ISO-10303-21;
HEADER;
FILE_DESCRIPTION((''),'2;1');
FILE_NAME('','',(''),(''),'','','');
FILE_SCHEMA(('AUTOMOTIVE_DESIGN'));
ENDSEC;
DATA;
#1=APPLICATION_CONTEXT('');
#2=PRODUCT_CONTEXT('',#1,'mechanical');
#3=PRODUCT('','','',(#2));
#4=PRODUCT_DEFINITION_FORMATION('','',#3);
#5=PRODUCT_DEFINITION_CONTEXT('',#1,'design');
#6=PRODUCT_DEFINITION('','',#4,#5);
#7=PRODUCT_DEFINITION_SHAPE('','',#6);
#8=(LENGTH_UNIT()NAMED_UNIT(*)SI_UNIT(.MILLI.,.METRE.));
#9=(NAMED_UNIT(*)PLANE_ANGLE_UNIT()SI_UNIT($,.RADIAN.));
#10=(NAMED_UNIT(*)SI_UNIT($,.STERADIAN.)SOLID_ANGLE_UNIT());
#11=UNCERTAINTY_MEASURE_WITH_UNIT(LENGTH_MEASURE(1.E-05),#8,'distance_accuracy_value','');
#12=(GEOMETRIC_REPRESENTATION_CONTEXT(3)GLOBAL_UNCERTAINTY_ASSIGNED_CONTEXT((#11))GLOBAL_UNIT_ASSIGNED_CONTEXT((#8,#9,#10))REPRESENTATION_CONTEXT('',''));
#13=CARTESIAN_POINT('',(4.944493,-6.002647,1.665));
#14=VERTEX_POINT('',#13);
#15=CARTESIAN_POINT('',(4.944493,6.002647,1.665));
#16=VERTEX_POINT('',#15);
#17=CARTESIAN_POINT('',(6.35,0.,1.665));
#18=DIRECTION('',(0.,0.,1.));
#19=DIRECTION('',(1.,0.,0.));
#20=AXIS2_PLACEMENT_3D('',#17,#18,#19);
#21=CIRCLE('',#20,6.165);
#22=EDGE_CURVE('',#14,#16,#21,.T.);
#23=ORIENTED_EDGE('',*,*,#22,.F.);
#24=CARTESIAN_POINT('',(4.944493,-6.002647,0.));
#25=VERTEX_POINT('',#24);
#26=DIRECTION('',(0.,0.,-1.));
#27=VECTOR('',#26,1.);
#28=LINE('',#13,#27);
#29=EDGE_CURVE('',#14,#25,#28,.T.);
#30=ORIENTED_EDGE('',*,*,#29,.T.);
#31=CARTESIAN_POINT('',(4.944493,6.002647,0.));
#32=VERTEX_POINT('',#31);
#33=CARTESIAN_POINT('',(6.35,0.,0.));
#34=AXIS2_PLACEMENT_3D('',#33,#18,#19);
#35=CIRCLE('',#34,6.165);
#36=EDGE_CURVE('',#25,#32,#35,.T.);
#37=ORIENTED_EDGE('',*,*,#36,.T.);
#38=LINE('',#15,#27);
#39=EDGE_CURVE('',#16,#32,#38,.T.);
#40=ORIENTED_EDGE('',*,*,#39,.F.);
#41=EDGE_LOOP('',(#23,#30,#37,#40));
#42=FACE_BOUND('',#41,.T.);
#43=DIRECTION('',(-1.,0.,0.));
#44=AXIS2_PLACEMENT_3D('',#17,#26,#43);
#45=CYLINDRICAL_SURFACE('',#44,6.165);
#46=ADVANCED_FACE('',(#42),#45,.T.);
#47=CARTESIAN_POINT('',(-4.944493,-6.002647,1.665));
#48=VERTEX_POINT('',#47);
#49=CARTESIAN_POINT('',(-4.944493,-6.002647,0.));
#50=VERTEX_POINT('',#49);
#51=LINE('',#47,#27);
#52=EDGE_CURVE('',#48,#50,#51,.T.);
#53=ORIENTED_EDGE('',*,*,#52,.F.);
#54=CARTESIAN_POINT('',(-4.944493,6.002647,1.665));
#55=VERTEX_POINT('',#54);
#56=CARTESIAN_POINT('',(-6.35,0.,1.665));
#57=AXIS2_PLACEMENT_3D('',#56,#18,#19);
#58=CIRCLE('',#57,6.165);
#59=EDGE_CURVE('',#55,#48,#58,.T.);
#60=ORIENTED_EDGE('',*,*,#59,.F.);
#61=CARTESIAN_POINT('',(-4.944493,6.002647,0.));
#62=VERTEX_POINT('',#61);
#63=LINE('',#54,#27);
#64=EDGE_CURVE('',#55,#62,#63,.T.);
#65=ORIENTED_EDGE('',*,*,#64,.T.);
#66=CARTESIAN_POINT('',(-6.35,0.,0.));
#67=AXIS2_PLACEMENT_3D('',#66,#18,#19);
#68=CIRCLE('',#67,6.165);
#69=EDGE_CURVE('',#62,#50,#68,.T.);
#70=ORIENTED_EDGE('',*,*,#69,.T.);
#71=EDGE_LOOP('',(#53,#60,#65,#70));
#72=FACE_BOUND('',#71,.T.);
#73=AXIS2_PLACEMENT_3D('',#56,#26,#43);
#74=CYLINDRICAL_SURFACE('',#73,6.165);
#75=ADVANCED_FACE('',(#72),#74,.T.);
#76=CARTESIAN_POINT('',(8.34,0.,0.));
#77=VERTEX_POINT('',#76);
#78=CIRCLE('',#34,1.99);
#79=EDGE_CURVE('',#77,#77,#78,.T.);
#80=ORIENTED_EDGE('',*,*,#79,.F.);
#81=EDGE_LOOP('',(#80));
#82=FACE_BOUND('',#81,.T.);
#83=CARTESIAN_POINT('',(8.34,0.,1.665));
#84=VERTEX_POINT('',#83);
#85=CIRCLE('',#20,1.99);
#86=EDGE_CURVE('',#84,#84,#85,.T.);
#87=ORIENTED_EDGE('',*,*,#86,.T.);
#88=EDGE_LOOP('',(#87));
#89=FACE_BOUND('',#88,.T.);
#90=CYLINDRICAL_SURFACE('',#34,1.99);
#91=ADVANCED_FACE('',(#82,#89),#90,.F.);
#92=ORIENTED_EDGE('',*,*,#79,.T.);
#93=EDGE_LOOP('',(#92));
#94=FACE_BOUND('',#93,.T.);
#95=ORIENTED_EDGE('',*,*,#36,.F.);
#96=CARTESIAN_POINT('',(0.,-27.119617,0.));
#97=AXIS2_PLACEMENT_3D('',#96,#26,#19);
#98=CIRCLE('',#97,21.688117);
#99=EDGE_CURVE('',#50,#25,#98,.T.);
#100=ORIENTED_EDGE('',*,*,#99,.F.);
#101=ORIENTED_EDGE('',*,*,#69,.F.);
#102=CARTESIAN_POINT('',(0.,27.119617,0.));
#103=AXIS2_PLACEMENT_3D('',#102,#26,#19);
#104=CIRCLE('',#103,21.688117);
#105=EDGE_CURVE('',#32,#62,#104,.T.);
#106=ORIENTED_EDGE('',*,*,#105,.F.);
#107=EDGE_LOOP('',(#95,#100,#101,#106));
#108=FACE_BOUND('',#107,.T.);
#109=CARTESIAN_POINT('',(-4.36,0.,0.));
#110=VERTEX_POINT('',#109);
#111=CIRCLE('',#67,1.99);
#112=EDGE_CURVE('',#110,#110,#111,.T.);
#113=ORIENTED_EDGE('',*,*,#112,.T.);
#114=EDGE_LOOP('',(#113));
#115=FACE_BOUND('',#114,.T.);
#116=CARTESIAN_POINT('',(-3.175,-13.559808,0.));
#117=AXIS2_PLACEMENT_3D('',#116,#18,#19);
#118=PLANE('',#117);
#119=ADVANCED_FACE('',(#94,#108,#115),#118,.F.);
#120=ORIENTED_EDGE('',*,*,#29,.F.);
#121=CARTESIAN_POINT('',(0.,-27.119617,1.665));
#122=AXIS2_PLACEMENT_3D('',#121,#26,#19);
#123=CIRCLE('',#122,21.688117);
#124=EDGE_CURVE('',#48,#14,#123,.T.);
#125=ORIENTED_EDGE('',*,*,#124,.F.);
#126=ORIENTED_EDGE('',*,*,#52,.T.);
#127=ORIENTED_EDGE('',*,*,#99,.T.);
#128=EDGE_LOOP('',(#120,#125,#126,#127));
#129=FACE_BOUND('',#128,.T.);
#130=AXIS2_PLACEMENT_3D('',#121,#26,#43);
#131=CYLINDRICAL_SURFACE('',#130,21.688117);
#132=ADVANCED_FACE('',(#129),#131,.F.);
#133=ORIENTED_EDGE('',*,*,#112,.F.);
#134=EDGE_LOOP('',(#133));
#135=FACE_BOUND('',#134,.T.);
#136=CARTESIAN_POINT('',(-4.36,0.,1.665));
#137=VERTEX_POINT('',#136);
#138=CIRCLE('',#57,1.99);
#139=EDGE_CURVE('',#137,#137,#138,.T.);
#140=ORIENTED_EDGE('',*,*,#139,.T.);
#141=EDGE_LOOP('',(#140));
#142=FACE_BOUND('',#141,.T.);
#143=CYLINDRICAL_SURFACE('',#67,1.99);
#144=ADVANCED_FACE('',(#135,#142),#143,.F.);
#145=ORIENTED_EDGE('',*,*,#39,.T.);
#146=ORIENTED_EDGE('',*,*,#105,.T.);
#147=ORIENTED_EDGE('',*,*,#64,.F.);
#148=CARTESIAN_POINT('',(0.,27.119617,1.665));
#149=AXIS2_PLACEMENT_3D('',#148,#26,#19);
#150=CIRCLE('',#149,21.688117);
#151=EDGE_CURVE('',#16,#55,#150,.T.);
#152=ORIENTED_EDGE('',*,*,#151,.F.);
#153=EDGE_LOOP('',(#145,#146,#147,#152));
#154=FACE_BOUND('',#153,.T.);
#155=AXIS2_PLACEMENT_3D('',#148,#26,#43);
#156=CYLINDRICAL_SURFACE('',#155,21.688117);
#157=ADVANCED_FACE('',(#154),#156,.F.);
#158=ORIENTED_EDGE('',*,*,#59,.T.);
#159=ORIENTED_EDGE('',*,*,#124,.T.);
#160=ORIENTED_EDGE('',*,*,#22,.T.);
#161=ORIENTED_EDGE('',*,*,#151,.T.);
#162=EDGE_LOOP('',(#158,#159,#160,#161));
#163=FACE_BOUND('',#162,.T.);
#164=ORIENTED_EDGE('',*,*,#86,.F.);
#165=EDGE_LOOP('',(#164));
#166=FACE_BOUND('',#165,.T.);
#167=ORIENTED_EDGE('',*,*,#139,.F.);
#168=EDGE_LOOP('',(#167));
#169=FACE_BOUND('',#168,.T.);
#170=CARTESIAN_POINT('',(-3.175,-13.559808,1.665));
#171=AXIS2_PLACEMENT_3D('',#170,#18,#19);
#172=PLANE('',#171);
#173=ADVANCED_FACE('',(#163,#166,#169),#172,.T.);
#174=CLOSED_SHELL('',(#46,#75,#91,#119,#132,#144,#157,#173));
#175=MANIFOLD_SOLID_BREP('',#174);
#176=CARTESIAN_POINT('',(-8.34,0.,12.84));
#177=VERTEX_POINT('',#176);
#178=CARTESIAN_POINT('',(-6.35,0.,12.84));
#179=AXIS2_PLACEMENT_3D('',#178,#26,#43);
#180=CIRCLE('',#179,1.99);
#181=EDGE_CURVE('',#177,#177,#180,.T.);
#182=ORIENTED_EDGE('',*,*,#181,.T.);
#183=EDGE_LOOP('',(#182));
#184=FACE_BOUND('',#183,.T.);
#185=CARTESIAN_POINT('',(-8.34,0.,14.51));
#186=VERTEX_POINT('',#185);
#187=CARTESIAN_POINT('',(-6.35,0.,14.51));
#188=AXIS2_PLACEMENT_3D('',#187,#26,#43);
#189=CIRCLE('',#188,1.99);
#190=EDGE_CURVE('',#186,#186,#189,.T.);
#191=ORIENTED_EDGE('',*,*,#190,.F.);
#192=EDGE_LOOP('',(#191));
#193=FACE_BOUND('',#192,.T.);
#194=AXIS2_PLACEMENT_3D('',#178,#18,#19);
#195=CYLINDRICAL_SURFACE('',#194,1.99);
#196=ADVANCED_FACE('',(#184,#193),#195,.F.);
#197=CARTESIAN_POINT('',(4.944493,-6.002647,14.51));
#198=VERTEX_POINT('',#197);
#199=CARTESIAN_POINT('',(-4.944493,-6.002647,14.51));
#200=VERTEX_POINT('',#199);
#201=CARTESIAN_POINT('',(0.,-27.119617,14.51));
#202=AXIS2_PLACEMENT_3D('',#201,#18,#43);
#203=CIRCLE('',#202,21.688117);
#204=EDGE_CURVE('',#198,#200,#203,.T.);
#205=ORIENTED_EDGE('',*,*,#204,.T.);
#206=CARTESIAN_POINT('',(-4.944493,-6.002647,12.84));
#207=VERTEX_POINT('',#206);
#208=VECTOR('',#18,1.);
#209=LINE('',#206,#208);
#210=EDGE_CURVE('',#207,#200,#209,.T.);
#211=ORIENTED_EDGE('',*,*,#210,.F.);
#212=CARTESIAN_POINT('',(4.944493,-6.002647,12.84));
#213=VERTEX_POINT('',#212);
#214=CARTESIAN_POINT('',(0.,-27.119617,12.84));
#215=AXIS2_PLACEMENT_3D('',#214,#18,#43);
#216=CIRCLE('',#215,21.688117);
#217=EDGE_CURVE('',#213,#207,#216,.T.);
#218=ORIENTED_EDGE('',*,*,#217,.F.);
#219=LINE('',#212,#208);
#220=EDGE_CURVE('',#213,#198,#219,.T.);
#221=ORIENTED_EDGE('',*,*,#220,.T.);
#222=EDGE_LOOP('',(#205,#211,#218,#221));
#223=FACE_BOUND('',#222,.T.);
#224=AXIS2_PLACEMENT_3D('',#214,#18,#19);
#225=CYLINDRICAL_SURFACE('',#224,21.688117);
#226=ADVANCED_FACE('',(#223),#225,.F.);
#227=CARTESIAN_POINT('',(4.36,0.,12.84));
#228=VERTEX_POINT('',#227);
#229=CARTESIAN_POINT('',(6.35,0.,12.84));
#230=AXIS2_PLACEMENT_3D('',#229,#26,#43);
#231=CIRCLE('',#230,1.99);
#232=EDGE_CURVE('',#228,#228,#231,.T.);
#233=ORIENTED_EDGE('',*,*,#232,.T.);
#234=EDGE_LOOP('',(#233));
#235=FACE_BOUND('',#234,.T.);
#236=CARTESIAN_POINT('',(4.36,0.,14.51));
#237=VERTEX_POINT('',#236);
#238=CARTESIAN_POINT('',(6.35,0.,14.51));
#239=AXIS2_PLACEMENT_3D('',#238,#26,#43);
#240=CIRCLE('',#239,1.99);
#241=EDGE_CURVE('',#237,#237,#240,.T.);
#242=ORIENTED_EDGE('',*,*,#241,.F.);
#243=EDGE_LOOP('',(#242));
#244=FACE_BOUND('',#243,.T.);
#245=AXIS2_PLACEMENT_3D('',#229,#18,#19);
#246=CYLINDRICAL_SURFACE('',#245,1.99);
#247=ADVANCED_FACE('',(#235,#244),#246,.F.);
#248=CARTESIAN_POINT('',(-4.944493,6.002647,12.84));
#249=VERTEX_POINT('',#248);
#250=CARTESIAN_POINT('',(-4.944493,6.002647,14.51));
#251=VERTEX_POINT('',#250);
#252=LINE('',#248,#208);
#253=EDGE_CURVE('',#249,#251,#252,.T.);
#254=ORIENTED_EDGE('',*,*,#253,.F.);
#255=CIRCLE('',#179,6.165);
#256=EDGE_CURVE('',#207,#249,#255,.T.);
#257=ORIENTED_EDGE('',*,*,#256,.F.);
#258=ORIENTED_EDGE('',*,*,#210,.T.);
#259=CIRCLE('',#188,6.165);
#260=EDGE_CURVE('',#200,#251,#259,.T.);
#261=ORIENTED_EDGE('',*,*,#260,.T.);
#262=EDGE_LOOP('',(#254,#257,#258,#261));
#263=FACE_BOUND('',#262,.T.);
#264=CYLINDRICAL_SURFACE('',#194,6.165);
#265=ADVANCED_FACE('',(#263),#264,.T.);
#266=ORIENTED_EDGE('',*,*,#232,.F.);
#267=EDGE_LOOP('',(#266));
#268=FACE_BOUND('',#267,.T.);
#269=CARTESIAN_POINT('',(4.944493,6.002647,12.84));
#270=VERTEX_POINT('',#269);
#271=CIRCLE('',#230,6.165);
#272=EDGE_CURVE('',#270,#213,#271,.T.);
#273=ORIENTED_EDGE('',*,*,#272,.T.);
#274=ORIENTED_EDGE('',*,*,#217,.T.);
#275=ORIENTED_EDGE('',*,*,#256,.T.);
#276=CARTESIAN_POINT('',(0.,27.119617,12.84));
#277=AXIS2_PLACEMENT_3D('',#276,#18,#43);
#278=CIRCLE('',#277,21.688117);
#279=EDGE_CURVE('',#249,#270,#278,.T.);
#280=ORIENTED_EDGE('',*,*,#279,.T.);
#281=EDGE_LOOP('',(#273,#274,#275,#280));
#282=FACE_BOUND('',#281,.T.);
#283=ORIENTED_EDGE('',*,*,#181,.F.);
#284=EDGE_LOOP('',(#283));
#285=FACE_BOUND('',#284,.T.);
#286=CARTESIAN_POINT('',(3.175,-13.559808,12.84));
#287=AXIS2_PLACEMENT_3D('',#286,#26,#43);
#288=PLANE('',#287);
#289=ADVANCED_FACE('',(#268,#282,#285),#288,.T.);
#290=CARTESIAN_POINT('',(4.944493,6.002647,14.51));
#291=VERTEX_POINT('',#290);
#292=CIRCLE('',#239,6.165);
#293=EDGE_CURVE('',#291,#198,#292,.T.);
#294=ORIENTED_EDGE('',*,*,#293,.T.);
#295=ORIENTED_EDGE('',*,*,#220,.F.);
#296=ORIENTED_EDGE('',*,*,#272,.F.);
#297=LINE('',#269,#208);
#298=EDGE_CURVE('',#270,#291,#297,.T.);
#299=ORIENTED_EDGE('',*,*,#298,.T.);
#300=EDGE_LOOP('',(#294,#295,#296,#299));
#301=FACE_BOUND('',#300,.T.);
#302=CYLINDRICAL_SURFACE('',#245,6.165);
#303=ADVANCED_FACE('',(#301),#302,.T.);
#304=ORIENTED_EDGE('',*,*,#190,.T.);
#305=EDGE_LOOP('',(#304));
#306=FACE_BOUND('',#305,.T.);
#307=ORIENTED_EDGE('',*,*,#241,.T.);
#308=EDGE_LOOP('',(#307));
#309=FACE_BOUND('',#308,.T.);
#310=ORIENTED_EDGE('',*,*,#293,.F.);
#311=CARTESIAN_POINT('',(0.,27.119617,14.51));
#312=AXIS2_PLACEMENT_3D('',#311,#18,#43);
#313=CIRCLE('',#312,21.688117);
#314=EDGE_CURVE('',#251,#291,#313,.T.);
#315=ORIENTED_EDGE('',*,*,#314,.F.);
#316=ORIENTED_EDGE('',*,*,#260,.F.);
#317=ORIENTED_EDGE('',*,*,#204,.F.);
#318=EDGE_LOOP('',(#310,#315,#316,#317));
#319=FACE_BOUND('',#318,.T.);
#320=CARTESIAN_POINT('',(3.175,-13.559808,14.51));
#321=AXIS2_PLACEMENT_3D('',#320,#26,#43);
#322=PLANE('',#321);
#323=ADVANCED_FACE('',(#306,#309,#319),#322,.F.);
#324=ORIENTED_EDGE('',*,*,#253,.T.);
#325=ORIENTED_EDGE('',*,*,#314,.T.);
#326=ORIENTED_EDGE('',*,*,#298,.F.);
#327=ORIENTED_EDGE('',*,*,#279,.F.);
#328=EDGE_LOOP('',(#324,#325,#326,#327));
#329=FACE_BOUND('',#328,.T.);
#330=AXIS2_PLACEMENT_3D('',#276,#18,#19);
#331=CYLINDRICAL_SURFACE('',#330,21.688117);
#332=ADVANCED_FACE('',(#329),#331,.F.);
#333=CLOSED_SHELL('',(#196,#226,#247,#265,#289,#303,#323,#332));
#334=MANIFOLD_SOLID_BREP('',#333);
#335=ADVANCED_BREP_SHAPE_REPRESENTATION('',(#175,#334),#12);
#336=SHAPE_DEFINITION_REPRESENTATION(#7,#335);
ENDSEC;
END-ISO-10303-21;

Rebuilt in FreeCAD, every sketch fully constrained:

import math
import FreeCAD as App
import Part
import Sketcher
Q = App.Units.Quantity

doc = App.newDocument("Part")
params = doc.addObject("Spreadsheet::Sheet", "Params")
for row, (alias, value) in enumerate([
    ("pad1_length", "1.665 mm"),
    ("sketch2_diameter", "3.98 mm"),
    ("sketch3_diameter", "3.98 mm"),
    ("pad2_length", "1.67 mm"),
], start=1):
    params.set(f"A{row}", alias)
    params.set(f"B{row}", "=" + value)
    params.setAlias(f"B{row}", alias)

body = doc.addObject("PartDesign::Body", "Body")

sketch1 = body.newObject("Sketcher::SketchObject", "Sketch")
sketch1.AttachmentSupport = (doc.getObject("XY_Plane"), [""])
sketch1.MapMode = "FlatFace"
sketch1.addGeometry(Part.ArcOfCircle(Part.Circle(App.Vector(-6, 0, 0), App.Vector(0, 0, 1), 6), math.radians(77), math.radians(283)), False)
sketch1.addGeometry(Part.ArcOfCircle(Part.Circle(App.Vector(0, -27, 0), App.Vector(0, 0, 1), 22), math.radians(77), math.radians(103)), False)
sketch1.addGeometry(Part.ArcOfCircle(Part.Circle(App.Vector(6, 0, 0), App.Vector(0, 0, 1), 6), math.radians(-103), math.radians(103)), False)
sketch1.addGeometry(Part.ArcOfCircle(Part.Circle(App.Vector(0, 27, 0), App.Vector(0, 0, 1), 22), math.radians(-103), math.radians(-77)), False)
sketch1.addConstraint(Sketcher.Constraint("Tangent", 0, 2, 1, 2))
sketch1.addConstraint(Sketcher.Constraint("Tangent", 1, 1, 2, 1))
sketch1.addConstraint(Sketcher.Constraint("Tangent", 2, 2, 3, 2))
sketch1.addConstraint(Sketcher.Constraint("Tangent", 3, 1, 0, 1))
sketch1.addConstraint(Sketcher.Constraint("Equal", 0, 2))
sketch1.addConstraint(Sketcher.Constraint("Equal", 1, 3))
sketch1.addConstraint(Sketcher.Constraint("Symmetric", 0, 3, 2, 3, -1, 1))
sketch1.addConstraint(Sketcher.Constraint("PointOnObject", 0, 3, -1))
sketch1.addConstraint(Sketcher.Constraint("Radius", 0, Q("6.165 mm")))
sketch1.addConstraint(Sketcher.Constraint("DistanceX", 0, 3, 2, 3, Q("12.7 mm")))
sketch1.addConstraint(Sketcher.Constraint("Radius", 1, Q("21.688117 mm")))
pad1 = body.newObject("PartDesign::Pad", "Pad")
pad1.Profile = sketch1
pad1.setExpression("Length", "Params.pad1_length")

sketch2 = body.newObject("Sketcher::SketchObject", "Sketch001")
sketch2.AttachmentSupport = (doc.getObject("XY_Plane"), [""])
sketch2.MapMode = "FlatFace"
sketch2.AttachmentOffset = App.Placement(App.Vector(0, 0, 1.665), App.Rotation())
sketch2.addGeometry(Part.Circle(App.Vector(-6.3, 0, 0), App.Vector(0, 0, 1), 2), False)
sketch2.addGeometry(Part.Circle(App.Vector(6.3, 0, 0), App.Vector(0, 0, 1), 2), False)
sketch2.addConstraint(Sketcher.Constraint("Equal", 0, 1))
sketch2.addConstraint(Sketcher.Constraint("Symmetric", 0, 3, 1, 3, -1, 1))
sketch2.addConstraint(Sketcher.Constraint("PointOnObject", 0, 3, -1))
sketch2.addConstraint(Sketcher.Constraint("Diameter", 0, Q("3.98 mm")))
sketch2.addConstraint(Sketcher.Constraint("DistanceX", 0, 3, 1, 3, Q("12.7 mm")))
sketch2.setExpression("Constraints[3]", "Params.sketch2_diameter")
pocket1 = body.newObject("PartDesign::Pocket", "Pocket")
pocket1.Profile = sketch2
pocket1.Type = "ThroughAll"
body2 = doc.addObject("PartDesign::Body", "Body001")

sketch3 = body2.newObject("Sketcher::SketchObject", "Sketch002")
sketch3.AttachmentSupport = (doc.getObject("XY_Plane001"), [""])
sketch3.MapMode = "FlatFace"
sketch3.AttachmentOffset = App.Placement(App.Vector(0, 0, 14.51), App.Rotation())
sketch3.addGeometry(Part.ArcOfCircle(Part.Circle(App.Vector(-6.3, 0, 0), App.Vector(0, 0, 1), 6.2), math.radians(77), math.radians(283)), False)
sketch3.addGeometry(Part.ArcOfCircle(Part.Circle(App.Vector(0, 27.1, 0), App.Vector(0, 0, 1), 21.7), math.radians(-103), math.radians(-77)), False)
sketch3.addGeometry(Part.ArcOfCircle(Part.Circle(App.Vector(6.3, 0, 0), App.Vector(0, 0, 1), 6.2), math.radians(-103), math.radians(103)), False)
sketch3.addGeometry(Part.ArcOfCircle(Part.Circle(App.Vector(0, -27.1, 0), App.Vector(0, 0, 1), 21.7), math.radians(77), math.radians(103)), False)
sketch3.addGeometry(Part.Circle(App.Vector(6.3, 0, 0), App.Vector(0, 0, 1), 2), False)
sketch3.addGeometry(Part.Circle(App.Vector(-6.3, 0, 0), App.Vector(0, 0, 1), 2), False)
sketch3.addConstraint(Sketcher.Constraint("Tangent", 0, 1, 1, 1))
sketch3.addConstraint(Sketcher.Constraint("Tangent", 1, 2, 2, 2))
sketch3.addConstraint(Sketcher.Constraint("Tangent", 2, 1, 3, 1))
sketch3.addConstraint(Sketcher.Constraint("Tangent", 3, 2, 0, 2))
sketch3.addConstraint(Sketcher.Constraint("Coincident", 4, 3, 2, 3))
sketch3.addConstraint(Sketcher.Constraint("Coincident", 5, 3, 0, 3))
sketch3.addConstraint(Sketcher.Constraint("Equal", 0, 2))
sketch3.addConstraint(Sketcher.Constraint("Equal", 1, 3))
sketch3.addConstraint(Sketcher.Constraint("Equal", 4, 5))
sketch3.addConstraint(Sketcher.Constraint("Symmetric", 0, 3, 2, 3, -1, 1))
sketch3.addConstraint(Sketcher.Constraint("PointOnObject", 0, 3, -1))
sketch3.addConstraint(Sketcher.Constraint("Diameter", 4, Q("3.98 mm")))
sketch3.addConstraint(Sketcher.Constraint("Radius", 0, Q("6.165 mm")))
sketch3.addConstraint(Sketcher.Constraint("DistanceX", 0, 3, 2, 3, Q("12.7 mm")))
sketch3.addConstraint(Sketcher.Constraint("Radius", 1, Q("21.688117 mm")))
sketch3.setExpression("Constraints[11]", "Params.sketch3_diameter")
pad2 = body2.newObject("PartDesign::Pad", "Pad001")
pad2.Profile = sketch3
pad2.setExpression("Length", "Params.pad2_length")
pad2.Reversed = True

doc.recompute()
